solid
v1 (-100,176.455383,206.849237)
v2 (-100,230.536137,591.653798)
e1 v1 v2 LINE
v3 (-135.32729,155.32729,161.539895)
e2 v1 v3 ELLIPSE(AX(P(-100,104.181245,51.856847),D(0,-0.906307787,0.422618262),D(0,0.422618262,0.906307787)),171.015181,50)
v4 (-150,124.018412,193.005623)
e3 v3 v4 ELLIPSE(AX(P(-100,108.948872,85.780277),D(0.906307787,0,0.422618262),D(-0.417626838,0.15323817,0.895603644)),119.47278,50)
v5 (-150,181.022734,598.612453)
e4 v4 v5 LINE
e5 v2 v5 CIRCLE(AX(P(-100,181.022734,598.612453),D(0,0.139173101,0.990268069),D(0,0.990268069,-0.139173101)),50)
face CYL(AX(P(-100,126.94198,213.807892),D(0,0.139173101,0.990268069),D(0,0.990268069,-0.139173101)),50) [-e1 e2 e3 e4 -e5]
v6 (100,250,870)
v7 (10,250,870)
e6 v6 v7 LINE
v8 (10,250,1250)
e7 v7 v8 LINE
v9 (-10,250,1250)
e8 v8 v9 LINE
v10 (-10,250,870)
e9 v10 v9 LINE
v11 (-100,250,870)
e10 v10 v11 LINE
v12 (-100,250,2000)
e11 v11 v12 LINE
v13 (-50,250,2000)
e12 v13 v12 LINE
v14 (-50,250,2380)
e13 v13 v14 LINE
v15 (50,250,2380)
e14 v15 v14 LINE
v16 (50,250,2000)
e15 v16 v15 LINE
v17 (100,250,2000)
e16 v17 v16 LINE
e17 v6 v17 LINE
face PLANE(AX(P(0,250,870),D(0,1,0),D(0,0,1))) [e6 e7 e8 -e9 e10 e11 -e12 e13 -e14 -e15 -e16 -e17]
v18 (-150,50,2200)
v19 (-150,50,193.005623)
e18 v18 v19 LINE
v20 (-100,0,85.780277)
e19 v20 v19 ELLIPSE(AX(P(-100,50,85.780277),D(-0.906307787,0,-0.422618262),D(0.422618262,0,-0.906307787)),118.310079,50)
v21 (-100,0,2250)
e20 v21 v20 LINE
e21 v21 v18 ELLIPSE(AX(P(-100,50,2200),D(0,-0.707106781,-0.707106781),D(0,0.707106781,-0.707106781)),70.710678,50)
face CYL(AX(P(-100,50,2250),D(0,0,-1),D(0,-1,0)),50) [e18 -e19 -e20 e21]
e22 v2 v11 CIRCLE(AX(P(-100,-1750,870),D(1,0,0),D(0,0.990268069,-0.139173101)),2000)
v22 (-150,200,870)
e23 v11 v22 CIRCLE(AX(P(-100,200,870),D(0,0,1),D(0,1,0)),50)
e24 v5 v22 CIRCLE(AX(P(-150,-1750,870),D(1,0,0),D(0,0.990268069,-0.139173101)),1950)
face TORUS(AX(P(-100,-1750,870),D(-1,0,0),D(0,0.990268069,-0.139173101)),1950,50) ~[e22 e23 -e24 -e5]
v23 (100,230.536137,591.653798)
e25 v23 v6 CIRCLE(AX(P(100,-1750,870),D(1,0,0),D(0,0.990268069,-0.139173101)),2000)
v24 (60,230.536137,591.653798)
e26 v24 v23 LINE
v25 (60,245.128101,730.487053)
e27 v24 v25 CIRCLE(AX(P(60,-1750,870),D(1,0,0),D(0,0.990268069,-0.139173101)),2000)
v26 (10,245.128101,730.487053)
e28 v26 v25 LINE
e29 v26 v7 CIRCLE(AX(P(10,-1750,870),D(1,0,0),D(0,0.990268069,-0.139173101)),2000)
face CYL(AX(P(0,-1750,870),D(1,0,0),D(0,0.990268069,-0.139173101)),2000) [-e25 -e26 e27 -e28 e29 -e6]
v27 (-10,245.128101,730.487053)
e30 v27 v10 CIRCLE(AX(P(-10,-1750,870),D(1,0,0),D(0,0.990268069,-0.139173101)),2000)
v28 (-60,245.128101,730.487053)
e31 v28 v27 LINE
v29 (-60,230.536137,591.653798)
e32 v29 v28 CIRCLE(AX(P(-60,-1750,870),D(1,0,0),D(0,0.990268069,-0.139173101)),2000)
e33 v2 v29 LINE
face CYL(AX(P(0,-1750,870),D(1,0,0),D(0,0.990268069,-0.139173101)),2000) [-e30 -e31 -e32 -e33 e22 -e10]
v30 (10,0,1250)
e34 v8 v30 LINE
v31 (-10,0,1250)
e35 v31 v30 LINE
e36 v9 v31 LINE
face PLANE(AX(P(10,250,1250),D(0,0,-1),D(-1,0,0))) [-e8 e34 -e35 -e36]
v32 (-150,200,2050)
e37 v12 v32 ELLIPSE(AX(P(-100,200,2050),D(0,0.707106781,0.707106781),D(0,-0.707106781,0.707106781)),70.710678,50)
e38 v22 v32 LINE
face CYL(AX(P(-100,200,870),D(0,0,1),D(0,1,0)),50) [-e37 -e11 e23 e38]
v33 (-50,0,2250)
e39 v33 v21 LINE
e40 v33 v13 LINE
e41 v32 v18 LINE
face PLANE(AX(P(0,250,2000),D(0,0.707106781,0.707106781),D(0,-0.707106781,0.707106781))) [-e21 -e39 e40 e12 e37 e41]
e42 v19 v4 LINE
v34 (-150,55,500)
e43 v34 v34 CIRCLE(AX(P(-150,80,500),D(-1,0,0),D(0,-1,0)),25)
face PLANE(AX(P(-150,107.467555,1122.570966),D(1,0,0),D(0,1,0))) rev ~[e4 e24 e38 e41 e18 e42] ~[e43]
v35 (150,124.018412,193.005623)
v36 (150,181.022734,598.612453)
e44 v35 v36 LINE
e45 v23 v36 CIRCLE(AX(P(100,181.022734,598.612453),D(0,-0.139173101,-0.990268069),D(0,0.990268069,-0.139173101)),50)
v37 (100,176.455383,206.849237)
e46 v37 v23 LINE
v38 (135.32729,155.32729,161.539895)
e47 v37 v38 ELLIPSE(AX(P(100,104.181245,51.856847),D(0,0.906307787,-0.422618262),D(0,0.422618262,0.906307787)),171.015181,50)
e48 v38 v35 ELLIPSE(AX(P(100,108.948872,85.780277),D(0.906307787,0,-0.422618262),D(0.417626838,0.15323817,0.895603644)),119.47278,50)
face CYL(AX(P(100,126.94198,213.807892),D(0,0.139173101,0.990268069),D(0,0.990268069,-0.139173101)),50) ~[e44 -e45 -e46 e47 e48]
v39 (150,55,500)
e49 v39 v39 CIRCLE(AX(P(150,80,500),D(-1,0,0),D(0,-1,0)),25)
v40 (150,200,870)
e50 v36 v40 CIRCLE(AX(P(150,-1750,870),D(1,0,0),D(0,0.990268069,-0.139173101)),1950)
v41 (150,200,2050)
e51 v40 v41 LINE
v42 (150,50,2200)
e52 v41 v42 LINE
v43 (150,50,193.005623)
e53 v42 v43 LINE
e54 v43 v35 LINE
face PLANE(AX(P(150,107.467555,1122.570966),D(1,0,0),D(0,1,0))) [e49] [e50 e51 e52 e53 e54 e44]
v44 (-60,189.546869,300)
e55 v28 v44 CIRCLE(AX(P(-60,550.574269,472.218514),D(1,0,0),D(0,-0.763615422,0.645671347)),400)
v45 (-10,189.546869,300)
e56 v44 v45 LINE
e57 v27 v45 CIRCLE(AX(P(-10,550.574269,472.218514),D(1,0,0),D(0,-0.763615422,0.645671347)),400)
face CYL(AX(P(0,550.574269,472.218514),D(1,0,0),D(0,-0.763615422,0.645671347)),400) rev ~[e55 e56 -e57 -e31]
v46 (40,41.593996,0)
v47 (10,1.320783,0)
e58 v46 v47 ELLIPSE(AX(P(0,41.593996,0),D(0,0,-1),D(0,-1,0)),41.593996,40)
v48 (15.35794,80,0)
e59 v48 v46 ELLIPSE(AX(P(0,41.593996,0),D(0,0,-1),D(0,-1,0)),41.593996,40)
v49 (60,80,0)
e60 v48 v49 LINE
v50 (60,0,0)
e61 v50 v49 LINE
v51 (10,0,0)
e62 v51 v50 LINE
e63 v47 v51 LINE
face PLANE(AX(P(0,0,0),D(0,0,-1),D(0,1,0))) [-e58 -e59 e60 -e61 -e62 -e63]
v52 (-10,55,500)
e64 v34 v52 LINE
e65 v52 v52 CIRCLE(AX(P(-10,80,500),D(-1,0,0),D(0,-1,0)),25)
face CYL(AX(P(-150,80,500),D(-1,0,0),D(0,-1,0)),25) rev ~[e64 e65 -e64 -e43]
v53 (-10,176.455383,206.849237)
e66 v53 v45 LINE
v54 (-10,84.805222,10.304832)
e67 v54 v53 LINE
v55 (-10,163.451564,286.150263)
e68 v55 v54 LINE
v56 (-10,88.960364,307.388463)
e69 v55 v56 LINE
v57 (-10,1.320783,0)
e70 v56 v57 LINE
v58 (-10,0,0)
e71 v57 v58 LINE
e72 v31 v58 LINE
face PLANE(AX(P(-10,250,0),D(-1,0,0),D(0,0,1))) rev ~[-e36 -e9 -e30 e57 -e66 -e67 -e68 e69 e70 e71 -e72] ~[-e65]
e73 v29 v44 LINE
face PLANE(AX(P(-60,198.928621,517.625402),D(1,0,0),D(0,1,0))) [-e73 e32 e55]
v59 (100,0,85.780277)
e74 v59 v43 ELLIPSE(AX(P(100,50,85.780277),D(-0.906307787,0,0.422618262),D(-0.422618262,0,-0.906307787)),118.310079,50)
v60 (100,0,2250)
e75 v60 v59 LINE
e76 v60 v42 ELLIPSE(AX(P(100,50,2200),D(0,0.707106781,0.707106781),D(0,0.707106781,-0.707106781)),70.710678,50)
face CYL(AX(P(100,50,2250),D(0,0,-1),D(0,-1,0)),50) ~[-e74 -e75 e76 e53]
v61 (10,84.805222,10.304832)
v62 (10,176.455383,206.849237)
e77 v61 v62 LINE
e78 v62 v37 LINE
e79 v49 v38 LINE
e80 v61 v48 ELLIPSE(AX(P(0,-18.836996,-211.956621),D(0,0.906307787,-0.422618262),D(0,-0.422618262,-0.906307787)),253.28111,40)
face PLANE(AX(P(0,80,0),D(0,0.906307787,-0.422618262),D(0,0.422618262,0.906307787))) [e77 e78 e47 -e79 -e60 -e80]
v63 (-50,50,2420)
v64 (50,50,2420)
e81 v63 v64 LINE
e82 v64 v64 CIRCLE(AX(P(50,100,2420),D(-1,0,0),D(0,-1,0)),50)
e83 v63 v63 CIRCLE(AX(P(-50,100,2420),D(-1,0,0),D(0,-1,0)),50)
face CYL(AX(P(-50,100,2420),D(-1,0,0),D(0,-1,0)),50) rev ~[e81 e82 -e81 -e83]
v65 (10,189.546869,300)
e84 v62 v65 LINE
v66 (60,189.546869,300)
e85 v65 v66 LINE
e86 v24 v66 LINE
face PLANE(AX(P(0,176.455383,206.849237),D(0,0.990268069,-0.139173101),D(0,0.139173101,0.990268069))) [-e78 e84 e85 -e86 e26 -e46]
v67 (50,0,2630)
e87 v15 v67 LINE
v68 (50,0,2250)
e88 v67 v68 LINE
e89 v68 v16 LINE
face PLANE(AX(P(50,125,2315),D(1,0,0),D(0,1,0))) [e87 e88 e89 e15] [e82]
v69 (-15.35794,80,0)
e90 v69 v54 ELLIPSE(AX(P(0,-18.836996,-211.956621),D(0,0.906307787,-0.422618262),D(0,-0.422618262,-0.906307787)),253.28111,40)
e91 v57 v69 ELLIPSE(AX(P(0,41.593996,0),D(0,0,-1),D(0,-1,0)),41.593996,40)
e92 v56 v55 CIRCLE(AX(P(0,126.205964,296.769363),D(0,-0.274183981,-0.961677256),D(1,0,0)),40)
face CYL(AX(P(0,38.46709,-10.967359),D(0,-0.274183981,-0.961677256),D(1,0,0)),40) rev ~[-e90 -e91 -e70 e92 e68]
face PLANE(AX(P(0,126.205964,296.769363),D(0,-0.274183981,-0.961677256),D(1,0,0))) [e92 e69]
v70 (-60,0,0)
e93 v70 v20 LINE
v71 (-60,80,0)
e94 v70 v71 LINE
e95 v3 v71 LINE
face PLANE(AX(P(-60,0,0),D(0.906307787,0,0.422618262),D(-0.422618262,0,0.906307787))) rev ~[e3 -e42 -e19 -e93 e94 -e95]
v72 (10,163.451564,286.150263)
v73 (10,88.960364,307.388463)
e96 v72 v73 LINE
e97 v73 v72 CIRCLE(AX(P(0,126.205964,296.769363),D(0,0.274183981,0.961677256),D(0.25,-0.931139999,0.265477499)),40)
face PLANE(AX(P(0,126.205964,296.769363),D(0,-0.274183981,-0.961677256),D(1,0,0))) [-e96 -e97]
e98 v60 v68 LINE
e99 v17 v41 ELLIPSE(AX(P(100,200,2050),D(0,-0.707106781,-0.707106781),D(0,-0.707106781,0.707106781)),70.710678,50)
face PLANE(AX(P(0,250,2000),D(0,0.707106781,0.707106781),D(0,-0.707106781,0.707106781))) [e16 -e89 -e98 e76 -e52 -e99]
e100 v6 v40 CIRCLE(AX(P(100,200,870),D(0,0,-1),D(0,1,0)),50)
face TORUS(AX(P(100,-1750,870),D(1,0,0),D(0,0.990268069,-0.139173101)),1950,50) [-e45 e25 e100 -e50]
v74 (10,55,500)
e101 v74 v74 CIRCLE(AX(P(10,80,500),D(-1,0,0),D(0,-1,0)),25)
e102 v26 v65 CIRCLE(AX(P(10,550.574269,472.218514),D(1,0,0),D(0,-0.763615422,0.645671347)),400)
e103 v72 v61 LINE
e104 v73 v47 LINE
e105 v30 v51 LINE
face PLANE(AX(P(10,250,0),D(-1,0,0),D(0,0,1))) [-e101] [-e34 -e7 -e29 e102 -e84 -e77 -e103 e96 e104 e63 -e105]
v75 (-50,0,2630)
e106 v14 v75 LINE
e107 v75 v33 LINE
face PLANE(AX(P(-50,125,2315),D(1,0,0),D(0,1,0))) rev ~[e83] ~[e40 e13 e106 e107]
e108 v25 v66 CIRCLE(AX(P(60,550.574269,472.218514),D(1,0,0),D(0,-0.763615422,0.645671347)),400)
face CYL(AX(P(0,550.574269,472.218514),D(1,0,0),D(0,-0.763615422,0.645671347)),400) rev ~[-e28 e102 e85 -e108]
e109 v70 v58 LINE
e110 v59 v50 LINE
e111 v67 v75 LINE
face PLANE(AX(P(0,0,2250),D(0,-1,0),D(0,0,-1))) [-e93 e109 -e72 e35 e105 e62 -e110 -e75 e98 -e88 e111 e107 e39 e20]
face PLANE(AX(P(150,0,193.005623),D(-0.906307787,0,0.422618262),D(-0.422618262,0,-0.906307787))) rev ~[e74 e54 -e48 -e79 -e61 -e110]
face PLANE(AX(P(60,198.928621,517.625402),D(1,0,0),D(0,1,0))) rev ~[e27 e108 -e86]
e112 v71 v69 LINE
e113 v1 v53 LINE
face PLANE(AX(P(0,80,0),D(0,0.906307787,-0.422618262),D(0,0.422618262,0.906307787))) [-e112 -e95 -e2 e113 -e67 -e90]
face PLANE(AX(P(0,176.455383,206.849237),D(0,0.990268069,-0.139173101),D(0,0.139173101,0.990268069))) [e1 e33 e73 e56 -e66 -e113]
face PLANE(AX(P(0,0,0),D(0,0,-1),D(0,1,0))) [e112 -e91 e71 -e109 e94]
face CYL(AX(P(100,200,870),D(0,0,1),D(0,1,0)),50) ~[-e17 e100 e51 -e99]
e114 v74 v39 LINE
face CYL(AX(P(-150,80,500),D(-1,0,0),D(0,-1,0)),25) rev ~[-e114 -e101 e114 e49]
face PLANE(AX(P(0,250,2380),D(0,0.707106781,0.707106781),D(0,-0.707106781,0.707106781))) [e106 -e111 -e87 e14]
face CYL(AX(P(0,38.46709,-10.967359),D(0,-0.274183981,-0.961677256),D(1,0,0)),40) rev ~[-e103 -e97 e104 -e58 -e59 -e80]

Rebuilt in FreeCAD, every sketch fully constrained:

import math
import FreeCAD as App
import Part
import Sketcher
Q = App.Units.Quantity


def edges_at(feature, points):
    """Names of the edges that pass closest to the given points."""
    edges = feature.Shape.Edges
    near = lambda p: min(range(len(edges)), key=lambda i: edges[i].distToShape(Part.Vertex(*p))[0])
    return sorted({f"Edge{near(p) + 1}" for p in points})

doc = App.newDocument("Part")
body = doc.addObject("PartDesign::Body", "Body")

# Sketch on YZ plane
sketch1 = body.newObject("Sketcher::SketchObject", "Sketch")
sketch1.AttachmentSupport = (doc.getObject("YZ_Plane"), [""])
sketch1.MapMode = "FlatFace"
sketch1.addGeometry([
    Part.LineSegment(App.Vector(0, 2250, 0), App.Vector(0, 0, 0)),  # 0
    Part.LineSegment(App.Vector(0, 0, 0), App.Vector(80, 0, 0)),  # 1
    Part.LineSegment(App.Vector(80, 0, 0), App.Vector(176, 207, 0)),  # 2
    Part.LineSegment(App.Vector(176, 207, 0), App.Vector(231, 592, 0)),  # 3
    Part.ArcOfCircle(Part.Circle(App.Vector(-1750, 870, 0), App.Vector(0, 0, 1), 2000), math.radians(-8), math.radians(0)),  # 4
    Part.LineSegment(App.Vector(250, 870, 0), App.Vector(250, 2000, 0)),  # 5
    Part.LineSegment(App.Vector(250, 2000, 0), App.Vector(0, 2250, 0)),  # 6
], False)
sketch1.addConstraint([
    Sketcher.Constraint("Coincident", 0, 2, 1, 1),
    Sketcher.Constraint("Coincident", 1, 2, 2, 1),
    Sketcher.Constraint("Coincident", 2, 2, 3, 1),
    Sketcher.Constraint("Tangent", 3, 2, 4, 1),
    Sketcher.Constraint("Coincident", 4, 2, 5, 1),
    Sketcher.Constraint("Coincident", 5, 2, 6, 1),
    Sketcher.Constraint("Coincident", 6, 2, 0, 1),
    Sketcher.Constraint("Vertical", 0),
    Sketcher.Constraint("Horizontal", 1),
    Sketcher.Constraint("Vertical", 5),
    Sketcher.Constraint("Coincident", 0, 2, -1, 1),
    Sketcher.Constraint("Radius", 4, Q("2000 mm")),
    Sketcher.Constraint("DistanceX", 1, 1, 1, 2, Q("80 mm")),
    Sketcher.Constraint("DistanceY", 0, 2, 0, 1, Q("2250 mm")),
    Sketcher.Constraint("DistanceY", 5, 1, 5, 2, Q("1130 mm")),
    Sketcher.Constraint("Angle", 2, Q("65 deg")),
    Sketcher.Constraint("Angle", 3, Q("82 deg")),
    Sketcher.Constraint("Angle", 6, Q("135 deg")),
    Sketcher.Constraint("DistanceX", 4, 3, -1, 1, Q("1750 mm")),
    Sketcher.Constraint("DistanceY", -1, 1, 4, 3, Q("870 mm")),
])
pad1 = body.newObject("PartDesign::Pad", "Pad")
pad1.Profile = sketch1
pad1.Length = 300
pad1.Midplane = True

# Sketch on YZ plane
sketch2 = body.newObject("Sketcher::SketchObject", "Sketch001")
sketch2.AttachmentSupport = (doc.getObject("YZ_Plane"), [""])
sketch2.MapMode = "FlatFace"
sketch2.addGeometry([
    Part.LineSegment(App.Vector(0, 2630, 0), App.Vector(0, 2250, 0)),
    Part.LineSegment(App.Vector(0, 2250, 0), App.Vector(250, 2000, 0)),
    Part.LineSegment(App.Vector(250, 2000, 0), App.Vector(250, 2380, 0)),
    Part.LineSegment(App.Vector(250, 2380, 0), App.Vector(0, 2630, 0)),
], False)
sketch2.addConstraint([
    Sketcher.Constraint("Coincident", 0, 2, 1, 1),
    Sketcher.Constraint("Coincident", 1, 2, 2, 1),
    Sketcher.Constraint("Coincident", 2, 2, 3, 1),
    Sketcher.Constraint("Coincident", 3, 2, 0, 1),
    Sketcher.Constraint("Vertical", 0),
    Sketcher.Constraint("Vertical", 2),
    Sketcher.Constraint("PointOnObject", 0, 2, -2),
    Sketcher.Constraint("Parallel", 1, 3),
    Sketcher.Constraint("DistanceY", 0, 2, 0, 1, Q("380 mm")),
    Sketcher.Constraint("Angle", 1, Q("-45 deg")),
    Sketcher.Constraint("DistanceY", -1, 1, 0, 2, Q("2250 mm")),
    Sketcher.Constraint("DistanceX", -1, 1, 1, 2, Q("250 mm")),
])
pad2 = body.newObject("PartDesign::Pad", "Pad001")
pad2.Profile = sketch2
pad2.Length = 100
pad2.Midplane = True

# Sketch on XZ plane
sketch3 = body.newObject("Sketcher::SketchObject", "Sketch002")
sketch3.AttachmentSupport = (doc.getObject("XZ_Plane"), [""])
sketch3.MapMode = "FlatFace"
sketch3.AttachmentOffset = App.Placement(App.Vector(0, 0, -250), App.Rotation())
sketch3.addGeometry([
    Part.LineSegment(App.Vector(10, 1250, 0), App.Vector(10, 0, 0)),
    Part.LineSegment(App.Vector(10, 0, 0), App.Vector(-10, 0, 0)),
    Part.LineSegment(App.Vector(-10, 0, 0), App.Vector(-10, 1250, 0)),
    Part.LineSegment(App.Vector(-10, 1250, 0), App.Vector(10, 1250, 0)),
], False)
sketch3.addConstraint([
    Sketcher.Constraint("Coincident", 0, 2, 1, 1),
    Sketcher.Constraint("Coincident", 1, 2, 2, 1),
    Sketcher.Constraint("Coincident", 2, 2, 3, 1),
    Sketcher.Constraint("Coincident", 3, 2, 0, 1),
    Sketcher.Constraint("Vertical", 0),
    Sketcher.Constraint("Horizontal", 1),
    Sketcher.Constraint("Vertical", 2),
    Sketcher.Constraint("Horizontal", 3),
    Sketcher.Constraint("Symmetric", 0, 2, 1, 2, -1, 1),
    Sketcher.Constraint("DistanceX", 1, 2, 1, 1, Q("20 mm")),
    Sketcher.Constraint("DistanceY", 0, 2, 0, 1, Q("1250 mm")),
])
pocket1 = body.newObject("PartDesign::Pocket", "Pocket")
pocket1.Profile = sketch3
pocket1.Length = 307
pocket1.Reversed = True

# Sketch on YZ plane
sketch4 = body.newObject("Sketcher::SketchObject", "Sketch003")
sketch4.AttachmentSupport = (doc.getObject("YZ_Plane"), [""])
sketch4.MapMode = "FlatFace"
sketch4.AttachmentOffset = App.Placement(App.Vector(0, 0, -150), App.Rotation())
sketch4.addGeometry(Part.Circle(App.Vector(80, 500, 0), App.Vector(0, 0, 1), 25), False)
sketch4.addConstraint([
    Sketcher.Constraint("Diameter", 0, Q("50 mm")),
    Sketcher.Constraint("DistanceX", -1, 1, 0, 3, Q("80 mm")),
    Sketcher.Constraint("DistanceY", -1, 1, 0, 3, Q("500 mm")),
])
pocket2 = body.newObject("PartDesign::Pocket", "Pocket001")
pocket2.Profile = sketch4
pocket2.Type = "ThroughAll"
pocket2.Reversed = True

# Sketch on YZ plane
sketch5 = body.newObject("Sketcher::SketchObject", "Sketch004")
sketch5.AttachmentSupport = (doc.getObject("YZ_Plane"), [""])
sketch5.MapMode = "FlatFace"
sketch5.AttachmentOffset = App.Placement(App.Vector(0, 0, -50), App.Rotation())
sketch5.addGeometry(Part.Circle(App.Vector(100, 2420, 0), App.Vector(0, 0, 1), 50), False)
sketch5.addConstraint([
    Sketcher.Constraint("Diameter", 0, Q("100 mm")),
    Sketcher.Constraint("DistanceX", -1, 1, 0, 3, Q("100 mm")),
    Sketcher.Constraint("DistanceY", -1, 1, 0, 3, Q("2420 mm")),
])
pocket3 = body.newObject("PartDesign::Pocket", "Pocket002")
pocket3.Profile = sketch5
pocket3.Type = "ThroughAll"
pocket3.Reversed = True

# Sketch on XZ plane
sketch6 = body.newObject("Sketcher::SketchObject", "Sketch005")
sketch6.AttachmentSupport = (doc.getObject("XZ_Plane"), [""])
sketch6.MapMode = "FlatFace"
sketch6.addGeometry([
    Part.LineSegment(App.Vector(150, 193, 0), App.Vector(60, 0, 0)),  # 0
    Part.LineSegment(App.Vector(60, 0, 0), App.Vector(150, 0, 0)),  # 1
    Part.LineSegment(App.Vector(150, 0, 0), App.Vector(150, 193, 0)),  # 2
    Part.LineSegment(App.Vector(-150, 0, 0), App.Vector(-60, 0, 0)),  # 3
    Part.LineSegment(App.Vector(-60, 0, 0), App.Vector(-150, 193, 0)),  # 4
    Part.LineSegment(App.Vector(-150, 193, 0), App.Vector(-150, 0, 0)),  # 5
], False)
sketch6.addConstraint([
    Sketcher.Constraint("Coincident", 0, 2, 1, 1),
    Sketcher.Constraint("Coincident", 1, 2, 2, 1),
    Sketcher.Constraint("Coincident", 2, 2, 0, 1),
    Sketcher.Constraint("Coincident", 3, 2, 4, 1),
    Sketcher.Constraint("Coincident", 4, 2, 5, 1),
    Sketcher.Constraint("Coincident", 5, 2, 3, 1),
    Sketcher.Constraint("Horizontal", 1),
    Sketcher.Constraint("Vertical", 2),
    Sketcher.Constraint("Horizontal", 3),
    Sketcher.Constraint("Vertical", 5),
    Sketcher.Constraint("Symmetric", 0, 2, 3, 2, -1, 1),
    Sketcher.Constraint("Symmetric", 2, 2, 4, 2, -2),
    Sketcher.Constraint("PointOnObject", 0, 2, -1),
    Sketcher.Constraint("DistanceX", 1, 1, 1, 2, Q("90 mm")),
    Sketcher.Constraint("Angle", 0, Q("-115 deg")),
    Sketcher.Constraint("DistanceX", -1, 1, 0, 2, Q("60 mm")),
])
pocket4 = body.newObject("PartDesign::Pocket", "Pocket003")
pocket4.Profile = sketch6
pocket4.Length = 223

# Sketch on YZ plane
sketch7 = body.newObject("Sketcher::SketchObject", "Sketch006")
sketch7.AttachmentSupport = (doc.getObject("YZ_Plane"), [""])
sketch7.MapMode = "FlatFace"
sketch7.addGeometry([
    Part.LineSegment(App.Vector(322, 722, 0), App.Vector(245, 730, 0)),  # 0
    Part.ArcOfCircle(Part.Circle(App.Vector(551, 472, 0), App.Vector(0, 0, 1), 400), math.radians(140), math.radians(206)),  # 1
    Part.LineSegment(App.Vector(190, 300, 0), App.Vector(265, 311, 0)),  # 2
    Part.LineSegment(App.Vector(265, 311, 0), App.Vector(265, 409, 0)),  # 3
    Part.LineSegment(App.Vector(265, 409, 0), App.Vector(300, 510, 0)),  # 4
    Part.LineSegment(App.Vector(300, 510, 0), App.Vector(322, 722, 0)),  # 5
], False)
sketch7.addConstraint([
    Sketcher.Constraint("Coincident", 0, 2, 1, 1),
    Sketcher.Constraint("Coincident", 1, 2, 2, 1),
    Sketcher.Constraint("Coincident", 2, 2, 3, 1),
    Sketcher.Constraint("Coincident", 3, 2, 4, 1),
    Sketcher.Constraint("Coincident", 4, 2, 5, 1),
    Sketcher.Constraint("Coincident", 5, 2, 0, 1),
    Sketcher.Constraint("Vertical", 3),
    Sketcher.Constraint("Perpendicular", 0, 5),
    Sketcher.Constraint("Radius", 1, Q("400 mm")),
    Sketcher.Constraint("Angle", 0, Q("174 deg")),
    Sketcher.Constraint("DistanceY", -1, 1, 1, 2, Q("300 mm")),
    Sketcher.Constraint("DistanceY", 3, 1, 3, 2, Q("97.918361 mm")),
    Sketcher.Constraint("DistanceX", -1, 1, 0, 2, Q("245.128101 mm")),
    Sketcher.Constraint("Distance", 2, Q("76.49103 mm")),
    Sketcher.Constraint("Distance", 4, Q("106.571991 mm")),
    Sketcher.Constraint("DistanceX", -1, 1, 1, 3, Q("550.574269 mm")),
    Sketcher.Constraint("DistanceY", -1, 1, 3, 2, Q("409.185618 mm")),
    Sketcher.Constraint("DistanceX", -1, 1, 5, 2, Q("321.972932 mm")),
    Sketcher.Constraint("DistanceY", 4, 2, 0, 2, Q("220.450449 mm")),
])
pocket5 = body.newObject("PartDesign::Pocket", "Pocket004")
pocket5.Profile = sketch7
pocket5.Length = 120
pocket5.Midplane = True

# Sketch on an angled plane
sketch8 = body.newObject("Sketcher::SketchObject", "Sketch007")
sketch8.Placement = App.Placement(App.Vector(0, 0, 0), App.Rotation(App.Vector(1, 0, 0), App.Vector(0, -0.961677256, 0.274183981), App.Vector(0, -0.274183981, -0.961677256), "ZXY"))
sketch8.addGeometry(Part.Circle(App.Vector(0, -40, 0), App.Vector(0, 0, 1), 40), False)
sketch8.addConstraint([
    Sketcher.Constraint("PointOnObject", 0, 3, -2),
    Sketcher.Constraint("Diameter", 0, Q("80 mm")),
    Sketcher.Constraint("DistanceY", 0, 3, -1, 1, Q("40 mm")),
])
pocket6 = body.newObject("PartDesign::Pocket", "Pocket005")
pocket6.Profile = sketch8
pocket6.Length = 320
doc.recompute()

fillet = body.newObject("PartDesign::Fillet", "Fillet")
fillet.Base = (pocket6, edges_at(pocket6, [
    (-150, 250, 1435),
    (150, 250, 1435),
    (-150, 245.128, 730.487),
    (-150, 203.496, 399.252),
    (150, 203.496, 399.252),
    (150, 245.128, 730.487),
    (-150, 0, 1221.503),
    (150, 0, 1221.503),
]))
fillet.Radius = 50

doc.recompute()
